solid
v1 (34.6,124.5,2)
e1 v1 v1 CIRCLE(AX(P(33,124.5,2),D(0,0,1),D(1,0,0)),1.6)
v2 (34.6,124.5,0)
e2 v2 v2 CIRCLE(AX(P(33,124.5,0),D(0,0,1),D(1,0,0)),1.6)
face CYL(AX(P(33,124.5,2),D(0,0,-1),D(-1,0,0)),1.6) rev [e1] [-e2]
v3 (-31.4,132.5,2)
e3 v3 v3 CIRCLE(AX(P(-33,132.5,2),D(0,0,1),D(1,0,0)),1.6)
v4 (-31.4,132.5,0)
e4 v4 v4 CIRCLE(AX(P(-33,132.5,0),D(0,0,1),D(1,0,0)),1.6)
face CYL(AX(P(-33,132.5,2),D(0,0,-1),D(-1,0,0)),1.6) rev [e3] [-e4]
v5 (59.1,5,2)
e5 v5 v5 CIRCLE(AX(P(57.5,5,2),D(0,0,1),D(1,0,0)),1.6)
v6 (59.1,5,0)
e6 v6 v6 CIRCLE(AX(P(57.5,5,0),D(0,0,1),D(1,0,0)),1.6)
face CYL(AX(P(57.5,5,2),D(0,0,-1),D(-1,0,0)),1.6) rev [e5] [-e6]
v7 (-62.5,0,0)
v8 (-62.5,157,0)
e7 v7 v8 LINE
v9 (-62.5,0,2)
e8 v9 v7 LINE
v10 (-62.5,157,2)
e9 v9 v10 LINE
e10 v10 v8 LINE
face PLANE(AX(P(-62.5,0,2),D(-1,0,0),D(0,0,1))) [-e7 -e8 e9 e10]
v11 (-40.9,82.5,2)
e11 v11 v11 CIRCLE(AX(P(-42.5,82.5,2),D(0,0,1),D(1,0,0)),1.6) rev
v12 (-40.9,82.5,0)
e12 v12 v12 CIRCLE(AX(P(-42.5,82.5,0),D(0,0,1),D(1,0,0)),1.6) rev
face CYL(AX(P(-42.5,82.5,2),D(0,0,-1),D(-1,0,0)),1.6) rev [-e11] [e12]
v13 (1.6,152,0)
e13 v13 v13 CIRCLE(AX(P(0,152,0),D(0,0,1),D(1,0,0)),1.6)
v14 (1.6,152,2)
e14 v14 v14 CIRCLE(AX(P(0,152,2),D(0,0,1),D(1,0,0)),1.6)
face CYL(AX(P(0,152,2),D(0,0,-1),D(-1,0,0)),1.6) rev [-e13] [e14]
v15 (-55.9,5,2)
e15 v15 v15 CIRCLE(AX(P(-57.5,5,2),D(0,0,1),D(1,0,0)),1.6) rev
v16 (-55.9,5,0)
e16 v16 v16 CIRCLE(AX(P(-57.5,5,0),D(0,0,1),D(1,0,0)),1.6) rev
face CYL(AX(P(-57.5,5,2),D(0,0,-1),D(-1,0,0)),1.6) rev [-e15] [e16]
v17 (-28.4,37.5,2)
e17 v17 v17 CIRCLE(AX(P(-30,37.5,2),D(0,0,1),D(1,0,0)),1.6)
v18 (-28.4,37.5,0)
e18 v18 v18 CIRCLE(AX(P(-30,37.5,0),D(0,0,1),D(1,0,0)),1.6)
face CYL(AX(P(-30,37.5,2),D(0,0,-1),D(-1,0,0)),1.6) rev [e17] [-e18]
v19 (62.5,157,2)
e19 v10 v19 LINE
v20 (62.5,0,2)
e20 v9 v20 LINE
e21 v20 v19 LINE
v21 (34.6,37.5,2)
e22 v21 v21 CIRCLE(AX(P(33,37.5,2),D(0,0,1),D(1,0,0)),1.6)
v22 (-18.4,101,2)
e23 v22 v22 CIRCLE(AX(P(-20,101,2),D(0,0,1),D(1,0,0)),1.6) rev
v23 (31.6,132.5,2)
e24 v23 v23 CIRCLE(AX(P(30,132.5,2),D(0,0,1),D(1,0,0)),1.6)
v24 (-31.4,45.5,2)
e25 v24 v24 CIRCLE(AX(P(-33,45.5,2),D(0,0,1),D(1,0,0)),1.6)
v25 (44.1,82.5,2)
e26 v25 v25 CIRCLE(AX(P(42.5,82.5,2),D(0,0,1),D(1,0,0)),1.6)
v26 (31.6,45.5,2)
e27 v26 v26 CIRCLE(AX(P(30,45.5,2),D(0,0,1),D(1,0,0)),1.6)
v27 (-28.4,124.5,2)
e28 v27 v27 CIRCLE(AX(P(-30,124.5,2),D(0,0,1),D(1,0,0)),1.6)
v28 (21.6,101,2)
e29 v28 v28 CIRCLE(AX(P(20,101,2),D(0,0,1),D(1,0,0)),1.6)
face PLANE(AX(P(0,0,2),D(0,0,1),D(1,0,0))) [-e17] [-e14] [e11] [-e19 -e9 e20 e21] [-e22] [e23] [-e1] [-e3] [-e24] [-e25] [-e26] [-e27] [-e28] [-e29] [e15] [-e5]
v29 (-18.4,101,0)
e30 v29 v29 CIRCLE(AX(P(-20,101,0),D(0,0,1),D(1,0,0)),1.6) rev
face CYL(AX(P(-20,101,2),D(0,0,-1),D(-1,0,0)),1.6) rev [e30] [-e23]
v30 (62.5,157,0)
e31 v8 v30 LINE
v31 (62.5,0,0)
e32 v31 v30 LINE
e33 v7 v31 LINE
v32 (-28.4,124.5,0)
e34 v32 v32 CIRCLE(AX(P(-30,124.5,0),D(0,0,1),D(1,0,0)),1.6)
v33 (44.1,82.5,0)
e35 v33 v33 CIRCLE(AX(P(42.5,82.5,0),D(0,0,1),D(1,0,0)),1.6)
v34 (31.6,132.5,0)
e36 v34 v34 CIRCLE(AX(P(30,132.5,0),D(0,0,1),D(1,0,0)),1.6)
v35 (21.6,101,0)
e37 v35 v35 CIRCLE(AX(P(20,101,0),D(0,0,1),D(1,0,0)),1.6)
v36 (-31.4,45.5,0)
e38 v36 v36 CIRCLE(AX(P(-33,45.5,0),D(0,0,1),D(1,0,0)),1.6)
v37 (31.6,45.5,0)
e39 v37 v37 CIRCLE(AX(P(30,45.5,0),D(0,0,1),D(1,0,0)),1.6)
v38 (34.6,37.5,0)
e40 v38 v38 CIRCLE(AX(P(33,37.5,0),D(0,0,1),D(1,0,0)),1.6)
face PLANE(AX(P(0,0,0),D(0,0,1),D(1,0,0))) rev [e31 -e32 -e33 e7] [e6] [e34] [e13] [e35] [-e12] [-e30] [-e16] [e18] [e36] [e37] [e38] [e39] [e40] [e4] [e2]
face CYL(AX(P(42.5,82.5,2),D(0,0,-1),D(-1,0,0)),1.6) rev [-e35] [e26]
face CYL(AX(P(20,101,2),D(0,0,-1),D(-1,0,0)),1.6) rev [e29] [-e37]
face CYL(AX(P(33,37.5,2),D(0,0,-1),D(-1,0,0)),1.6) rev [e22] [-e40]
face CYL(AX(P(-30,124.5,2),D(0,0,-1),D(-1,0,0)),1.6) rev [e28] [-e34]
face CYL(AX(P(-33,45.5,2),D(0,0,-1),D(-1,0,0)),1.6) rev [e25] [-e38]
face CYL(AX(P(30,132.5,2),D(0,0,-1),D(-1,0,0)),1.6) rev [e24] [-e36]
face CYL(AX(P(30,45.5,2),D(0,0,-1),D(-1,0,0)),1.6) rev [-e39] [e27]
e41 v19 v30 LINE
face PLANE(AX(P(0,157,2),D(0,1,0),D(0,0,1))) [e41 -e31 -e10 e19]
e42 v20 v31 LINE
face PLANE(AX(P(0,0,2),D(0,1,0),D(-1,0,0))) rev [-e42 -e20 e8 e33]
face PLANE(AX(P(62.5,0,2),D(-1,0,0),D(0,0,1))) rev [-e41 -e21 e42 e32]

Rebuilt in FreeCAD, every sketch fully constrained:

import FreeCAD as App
import Part
import Sketcher

V = App.Vector

doc = App.newDocument("Part")
body = doc.addObject("PartDesign::Body", "Body")

sketch1 = doc.addObject("Sketcher::SketchObject", "Sketch")
body.addObject(sketch1)
sketch1.AttachmentSupport = (doc.XY_Plane, [""])
sketch1.MapMode = "FlatFace"
sketch1.addGeometry(Part.LineSegment(V(-62.5, 157, 0), V(-62.5, 0, 0)), False)
sketch1.addGeometry(Part.LineSegment(V(-62.5, 0, 0), V(62.5, 0, 0)), False)
sketch1.addGeometry(Part.LineSegment(V(62.5, 0, 0), V(62.5, 157, 0)), False)
sketch1.addGeometry(Part.LineSegment(V(62.5, 157, 0), V(-62.5, 157, 0)), False)
sketch1.addGeometry(Part.Circle(V(-57.5, 5, 0), V(0, 0, 1), 1.6), False)
sketch1.addGeometry(Part.Circle(V(57.5, 5, 0), V(0, 0, 1), 1.6), False)
sketch1.addGeometry(Part.Circle(V(-42.5, 82.5, 0), V(0, 0, 1), 1.6), False)
sketch1.addGeometry(Part.Circle(V(-20, 101, 0), V(0, 0, 1), 1.6), False)
sketch1.addGeometry(Part.Circle(V(20, 101, 0), V(0, 0, 1), 1.6), False)
sketch1.addGeometry(Part.Circle(V(42.5, 82.5, 0), V(0, 0, 1), 1.6), False)
sketch1.addGeometry(Part.Circle(V(0, 152, 0), V(0, 0, 1), 1.6), False)
sketch1.addGeometry(Part.Circle(V(-30, 37.5, 0), V(0, 0, 1), 1.6), False)
sketch1.addGeometry(Part.Circle(V(-33, 45.5, 0), V(0, 0, 1), 1.6), False)
sketch1.addGeometry(Part.Circle(V(33, 37.5, 0), V(0, 0, 1), 1.6), False)
sketch1.addGeometry(Part.Circle(V(30, 45.5, 0), V(0, 0, 1), 1.6), False)
sketch1.addGeometry(Part.Circle(V(-30, 124.5, 0), V(0, 0, 1), 1.6), False)
sketch1.addGeometry(Part.Circle(V(-33, 132.5, 0), V(0, 0, 1), 1.6), False)
sketch1.addGeometry(Part.Circle(V(33, 124.5, 0), V(0, 0, 1), 1.6), False)
sketch1.addGeometry(Part.Circle(V(30, 132.5, 0), V(0, 0, 1), 1.6), False)
sketch1.addConstraint(Sketcher.Constraint("Coincident", 0, 2, 1, 1))
sketch1.addConstraint(Sketcher.Constraint("Coincident", 1, 2, 2, 1))
sketch1.addConstraint(Sketcher.Constraint("Coincident", 2, 2, 3, 1))
sketch1.addConstraint(Sketcher.Constraint("Coincident", 3, 2, 0, 1))
sketch1.addConstraint(Sketcher.Constraint("Vertical", 0))
sketch1.addConstraint(Sketcher.Constraint("Horizontal", 1))
sketch1.addConstraint(Sketcher.Constraint("Vertical", 2))
sketch1.addConstraint(Sketcher.Constraint("Horizontal", 3))
sketch1.addConstraint(Sketcher.Constraint("Equal", 4, 5))
sketch1.addConstraint(Sketcher.Constraint("Equal", 5, 6))
sketch1.addConstraint(Sketcher.Constraint("Equal", 6, 7))
sketch1.addConstraint(Sketcher.Constraint("Equal", 7, 8))
sketch1.addConstraint(Sketcher.Constraint("Equal", 8, 9))
sketch1.addConstraint(Sketcher.Constraint("Equal", 9, 10))
sketch1.addConstraint(Sketcher.Constraint("Equal", 10, 11))
sketch1.addConstraint(Sketcher.Constraint("Equal", 11, 12))
sketch1.addConstraint(Sketcher.Constraint("Equal", 12, 13))
sketch1.addConstraint(Sketcher.Constraint("Equal", 13, 14))
sketch1.addConstraint(Sketcher.Constraint("Equal", 14, 15))
sketch1.addConstraint(Sketcher.Constraint("Equal", 15, 16))
sketch1.addConstraint(Sketcher.Constraint("Equal", 16, 17))
sketch1.addConstraint(Sketcher.Constraint("Equal", 17, 18))
sketch1.addConstraint(Sketcher.Constraint("Symmetric", 0, 2, 1, 2, -1, 1))
sketch1.addConstraint(Sketcher.Constraint("Symmetric", 4, 3, 5, 3, -2))
sketch1.addConstraint(Sketcher.Constraint("Symmetric", 7, 3, 8, 3, -2))
sketch1.addConstraint(Sketcher.Constraint("Symmetric", 6, 3, 9, 3, -2))
sketch1.addConstraint(Sketcher.Constraint("PointOnObject", 10, 3, -2))
sketch1.addConstraint(Sketcher.Constraint("Horizontal", 11, 3, 13, 3))
sketch1.addConstraint(Sketcher.Constraint("Horizontal", 12, 3, 14, 3))
sketch1.addConstraint(Sketcher.Constraint("Horizontal", 15, 3, 17, 3))
sketch1.addConstraint(Sketcher.Constraint("Horizontal", 16, 3, 18, 3))
sketch1.addConstraint(Sketcher.Constraint("Vertical", 11, 3, 15, 3))
sketch1.addConstraint(Sketcher.Constraint("Vertical", 12, 3, 16, 3))
sketch1.addConstraint(Sketcher.Constraint("Vertical", 13, 3, 17, 3))
sketch1.addConstraint(Sketcher.Constraint("Vertical", 14, 3, 18, 3))
sketch1.addConstraint(Sketcher.Constraint("Diameter", 4, 3.2))
sketch1.addConstraint(Sketcher.Constraint("DistanceX", 1, 1, 1, 2, 125.0))
sketch1.addConstraint(Sketcher.Constraint("DistanceY", 0, 2, 0, 1, 157.0))
sketch1.addConstraint(Sketcher.Constraint("DistanceY", -1, 1, 4, 3, 5.0))
sketch1.addConstraint(Sketcher.Constraint("DistanceX", 7, 3, -1, 1, 20.0))
sketch1.addConstraint(Sketcher.Constraint("DistanceY", -1, 1, 7, 3, 101.0))
sketch1.addConstraint(Sketcher.Constraint("DistanceY", -1, 1, 10, 3, 152.0))
sketch1.addConstraint(Sketcher.Constraint("DistanceX", 11, 3, -1, 1, 30.0))
sketch1.addConstraint(Sketcher.Constraint("DistanceX", 12, 3, -1, 1, 33.0))
sketch1.addConstraint(Sketcher.Constraint("DistanceX", -1, 1, 13, 3, 33.0))
sketch1.addConstraint(Sketcher.Constraint("DistanceX", -1, 1, 14, 3, 30.0))
sketch1.addConstraint(Sketcher.Constraint("DistanceX", 4, 3, 5, 3, 115.0))
sketch1.addConstraint(Sketcher.Constraint("DistanceX", 4, 3, 6, 3, 15.0))
sketch1.addConstraint(Sketcher.Constraint("DistanceY", 11, 3, 6, 3, 45.0))
sketch1.addConstraint(Sketcher.Constraint("DistanceY", 11, 3, 12, 3, 8.0))
sketch1.addConstraint(Sketcher.Constraint("DistanceY", 6, 3, 15, 3, 42.0))
sketch1.addConstraint(Sketcher.Constraint("DistanceY", 15, 3, 16, 3, 8.0))
sketch1.addConstraint(Sketcher.Constraint("DistanceY", -1, 1, 6, 3, 82.5))
pad1 = doc.addObject("PartDesign::Pad", "Pad")
body.addObject(pad1)
pad1.Profile = sketch1
pad1.Length = 2

doc.recompute()
